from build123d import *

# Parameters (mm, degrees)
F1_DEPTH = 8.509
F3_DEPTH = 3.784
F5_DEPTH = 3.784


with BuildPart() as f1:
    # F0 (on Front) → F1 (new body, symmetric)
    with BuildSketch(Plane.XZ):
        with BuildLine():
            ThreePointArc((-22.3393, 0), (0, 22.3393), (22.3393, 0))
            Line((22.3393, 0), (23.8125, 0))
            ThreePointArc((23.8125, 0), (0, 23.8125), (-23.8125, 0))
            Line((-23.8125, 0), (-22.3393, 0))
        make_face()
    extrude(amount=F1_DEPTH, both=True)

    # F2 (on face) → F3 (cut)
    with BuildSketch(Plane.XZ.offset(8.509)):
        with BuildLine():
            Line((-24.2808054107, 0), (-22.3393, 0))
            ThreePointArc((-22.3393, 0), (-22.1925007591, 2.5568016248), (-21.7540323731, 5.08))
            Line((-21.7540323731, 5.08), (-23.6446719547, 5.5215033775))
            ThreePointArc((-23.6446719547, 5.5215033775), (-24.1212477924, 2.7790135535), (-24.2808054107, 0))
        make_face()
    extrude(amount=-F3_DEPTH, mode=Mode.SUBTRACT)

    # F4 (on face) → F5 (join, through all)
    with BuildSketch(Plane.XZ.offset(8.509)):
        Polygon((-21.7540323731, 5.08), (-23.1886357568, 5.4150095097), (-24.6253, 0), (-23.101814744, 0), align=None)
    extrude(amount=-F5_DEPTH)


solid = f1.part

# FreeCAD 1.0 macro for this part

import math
import FreeCAD as App
import Part
import Sketcher
from FreeCAD import Vector
Q = App.Units.Quantity


def add_polygon(sketch, points):
    """Adds a closed chain of lines whose ends are joined by coincident constraints."""
    first, n = sketch.GeometryCount, len(points)
    for a, b in zip(points, points[1:] + points[:1]):
        sketch.addGeometry(Part.LineSegment(App.Vector(*a, 0), App.Vector(*b, 0)), False)
    for i in range(n):
        sketch.addConstraint(Sketcher.Constraint("Coincident", first + i, 2, first + (i + 1) % n, 1))

doc = App.newDocument("Part")
params = doc.addObject("Spreadsheet::Sheet", "Params")
for row, (alias, value) in enumerate([
    ("sketch1_radius", "0.9375 in"),
    ("pad1_length", "0.67 in"),
    ("pocket1_length", "3.784 mm"),
    ("sketch3_length", "0.058 in"),
    ("pad2_length", "3.784 mm"),
], start=1):
    params.set(f"A{row}", alias)
    params.set(f"B{row}", "=" + value)
    params.setAlias(f"B{row}", alias)

body = doc.addObject("PartDesign::Body", "Body")

# Sketch on XZ plane
sketch1 = body.newObject("Sketcher::SketchObject", "Sketch")
sketch1.AttachmentSupport = (doc.getObject("XZ_Plane"), [""])
sketch1.MapMode = "FlatFace"
sketch1.addGeometry(Part.ArcOfCircle(Part.Circle(Vector(0, 0, 0), Vector(0, 0, 1), 22.3393), math.radians(0), math.radians(180)), False)
sketch1.addGeometry(Part.LineSegment(Vector(22.3393, 0, 0), Vector(23.8125, 0, 0)), False)
sketch1.addGeometry(Part.ArcOfCircle(Part.Circle(Vector(0, 0, 0), Vector(0, 0, 1), 23.8125), math.radians(0), math.radians(180)), False)
sketch1.addGeometry(Part.LineSegment(Vector(-23.8125, 0, 0), Vector(-22.3393, 0, 0)), False)
sketch1.addConstraint(Sketcher.Constraint("Coincident", 0, 1, 1, 1))
sketch1.addConstraint(Sketcher.Constraint("Coincident", 1, 2, 2, 1))
sketch1.addConstraint(Sketcher.Constraint("Coincident", 2, 2, 3, 1))
sketch1.addConstraint(Sketcher.Constraint("Coincident", 3, 2, 0, 2))
sketch1.addConstraint(Sketcher.Constraint("Horizontal", 1))
sketch1.addConstraint(Sketcher.Constraint("Horizontal", 3))
sketch1.addConstraint(Sketcher.Constraint("Coincident", 0, 3, -1, 1))
sketch1.addConstraint(Sketcher.Constraint("Coincident", 2, 3, -1, 1))
sketch1.addConstraint(Sketcher.Constraint("PointOnObject", 0, 1, -1))
sketch1.addConstraint(Sketcher.Constraint("PointOnObject", 2, 2, -1))
sketch1.addConstraint(Sketcher.Constraint("Radius", 2, Q("0.9375 in")))
sketch1.addConstraint(Sketcher.Constraint("Radius", 0, Q("0.8795 in")))
sketch1.setExpression("Constraints[10]", "Params.sketch1_radius")
pad1 = body.newObject("PartDesign::Pad", "Pad")
pad1.Profile = sketch1
pad1.setExpression("Length", "Params.pad1_length")
pad1.Midplane = True

# Sketch on XZ plane
sketch2 = body.newObject("Sketcher::SketchObject", "Sketch001")
sketch2.AttachmentSupport = (doc.getObject("XZ_Plane"), [""])
sketch2.MapMode = "FlatFace"
sketch2.AttachmentOffset = App.Placement(Vector(0, 0, 0.335 * 25.4), App.Rotation())
sketch2.addGeometry(Part.LineSegment(Vector(-24.280805, 0, 0), Vector(-22.3393, 0, 0)), False)
sketch2.addGeometry(Part.ArcOfCircle(Part.Circle(Vector(0, 0, 0), Vector(0, 0, 1), 22.3393), math.radians(166.855839), math.radians(180)), False)
sketch2.addGeometry(Part.LineSegment(Vector(-21.754032, 5.08, 0), Vector(-23.644672, 5.521503, 0)), False)
sketch2.addGeometry(Part.ArcOfCircle(Part.Circle(Vector(0, 0, 0), Vector(0, 0, 1), 24.280805), math.radians(166.855836), math.radians(180)), False)
sketch2.addConstraint(Sketcher.Constraint("Coincident", 0, 2, 1, 2))
sketch2.addConstraint(Sketcher.Constraint("Coincident", 1, 1, 2, 1))
sketch2.addConstraint(Sketcher.Constraint("Coincident", 2, 2, 3, 1))
sketch2.addConstraint(Sketcher.Constraint("Coincident", 3, 2, 0, 1))
sketch2.addConstraint(Sketcher.Constraint("Horizontal", 0))
sketch2.addConstraint(Sketcher.Constraint("Coincident", 1, 3, -1, 1))
sketch2.addConstraint(Sketcher.Constraint("Coincident", 3, 3, -1, 1))
sketch2.addConstraint(Sketcher.Constraint("PointOnObject", 0, 2, -1))
sketch2.addConstraint(Sketcher.Constraint("DistanceY", -1, 1, 1, 1, Q("0.2 in")))
sketch2.addConstraint(Sketcher.Constraint("Radius", 1, Q("0.8795 in")))
sketch2.addConstraint(Sketcher.Constraint("Radius", 3, 24.280805))
sketch2.addConstraint(Sketcher.Constraint("DistanceX", 2, 2, -1, 1, 23.644672))
pocket1 = body.newObject("PartDesign::Pocket", "Pocket")
pocket1.Profile = sketch2
pocket1.setExpression("Length", "Params.pocket1_length")

# Sketch on XZ plane
sketch3 = body.newObject("Sketcher::SketchObject", "Sketch002")
sketch3.AttachmentSupport = (doc.getObject("XZ_Plane"), [""])
sketch3.MapMode = "FlatFace"
sketch3.AttachmentOffset = App.Placement(Vector(0, 0, 0.335 * 25.4), App.Rotation())
add_polygon(sketch3, [(-21.754032, 5.08), (-23.188636, 5.41501), (-24.6253, 0), (-23.101815, 0)])  # lines 0-3
sketch3.addConstraint(Sketcher.Constraint("Horizontal", 2))
sketch3.addConstraint(Sketcher.Constraint("PointOnObject", 1, 2, -1))
sketch3.addConstraint(Sketcher.Constraint("Parallel", 1, 3))
sketch3.addConstraint(Sketcher.Constraint("DistanceY", -1, 1, 3, 2, Q("0.2 in")))
sketch3.addConstraint(Sketcher.Constraint("Distance", 0, Q("0.058 in")))
sketch3.addConstraint(Sketcher.Constraint("DistanceX", 1, 2, -1, 1, Q("0.9695 in")))
sketch3.addConstraint(Sketcher.Constraint("Distance", 1, 5.602351))
sketch3.addConstraint(Sketcher.Constraint("Distance", 3, 5.255751))
sketch3.setExpression("Constraints[8]", "Params.sketch3_length")
pad2 = body.newObject("PartDesign::Pad", "Pad001")
pad2.Profile = sketch3
pad2.setExpression("Length", "Params.pad2_length")
pad2.Reversed = True

doc.recompute()
